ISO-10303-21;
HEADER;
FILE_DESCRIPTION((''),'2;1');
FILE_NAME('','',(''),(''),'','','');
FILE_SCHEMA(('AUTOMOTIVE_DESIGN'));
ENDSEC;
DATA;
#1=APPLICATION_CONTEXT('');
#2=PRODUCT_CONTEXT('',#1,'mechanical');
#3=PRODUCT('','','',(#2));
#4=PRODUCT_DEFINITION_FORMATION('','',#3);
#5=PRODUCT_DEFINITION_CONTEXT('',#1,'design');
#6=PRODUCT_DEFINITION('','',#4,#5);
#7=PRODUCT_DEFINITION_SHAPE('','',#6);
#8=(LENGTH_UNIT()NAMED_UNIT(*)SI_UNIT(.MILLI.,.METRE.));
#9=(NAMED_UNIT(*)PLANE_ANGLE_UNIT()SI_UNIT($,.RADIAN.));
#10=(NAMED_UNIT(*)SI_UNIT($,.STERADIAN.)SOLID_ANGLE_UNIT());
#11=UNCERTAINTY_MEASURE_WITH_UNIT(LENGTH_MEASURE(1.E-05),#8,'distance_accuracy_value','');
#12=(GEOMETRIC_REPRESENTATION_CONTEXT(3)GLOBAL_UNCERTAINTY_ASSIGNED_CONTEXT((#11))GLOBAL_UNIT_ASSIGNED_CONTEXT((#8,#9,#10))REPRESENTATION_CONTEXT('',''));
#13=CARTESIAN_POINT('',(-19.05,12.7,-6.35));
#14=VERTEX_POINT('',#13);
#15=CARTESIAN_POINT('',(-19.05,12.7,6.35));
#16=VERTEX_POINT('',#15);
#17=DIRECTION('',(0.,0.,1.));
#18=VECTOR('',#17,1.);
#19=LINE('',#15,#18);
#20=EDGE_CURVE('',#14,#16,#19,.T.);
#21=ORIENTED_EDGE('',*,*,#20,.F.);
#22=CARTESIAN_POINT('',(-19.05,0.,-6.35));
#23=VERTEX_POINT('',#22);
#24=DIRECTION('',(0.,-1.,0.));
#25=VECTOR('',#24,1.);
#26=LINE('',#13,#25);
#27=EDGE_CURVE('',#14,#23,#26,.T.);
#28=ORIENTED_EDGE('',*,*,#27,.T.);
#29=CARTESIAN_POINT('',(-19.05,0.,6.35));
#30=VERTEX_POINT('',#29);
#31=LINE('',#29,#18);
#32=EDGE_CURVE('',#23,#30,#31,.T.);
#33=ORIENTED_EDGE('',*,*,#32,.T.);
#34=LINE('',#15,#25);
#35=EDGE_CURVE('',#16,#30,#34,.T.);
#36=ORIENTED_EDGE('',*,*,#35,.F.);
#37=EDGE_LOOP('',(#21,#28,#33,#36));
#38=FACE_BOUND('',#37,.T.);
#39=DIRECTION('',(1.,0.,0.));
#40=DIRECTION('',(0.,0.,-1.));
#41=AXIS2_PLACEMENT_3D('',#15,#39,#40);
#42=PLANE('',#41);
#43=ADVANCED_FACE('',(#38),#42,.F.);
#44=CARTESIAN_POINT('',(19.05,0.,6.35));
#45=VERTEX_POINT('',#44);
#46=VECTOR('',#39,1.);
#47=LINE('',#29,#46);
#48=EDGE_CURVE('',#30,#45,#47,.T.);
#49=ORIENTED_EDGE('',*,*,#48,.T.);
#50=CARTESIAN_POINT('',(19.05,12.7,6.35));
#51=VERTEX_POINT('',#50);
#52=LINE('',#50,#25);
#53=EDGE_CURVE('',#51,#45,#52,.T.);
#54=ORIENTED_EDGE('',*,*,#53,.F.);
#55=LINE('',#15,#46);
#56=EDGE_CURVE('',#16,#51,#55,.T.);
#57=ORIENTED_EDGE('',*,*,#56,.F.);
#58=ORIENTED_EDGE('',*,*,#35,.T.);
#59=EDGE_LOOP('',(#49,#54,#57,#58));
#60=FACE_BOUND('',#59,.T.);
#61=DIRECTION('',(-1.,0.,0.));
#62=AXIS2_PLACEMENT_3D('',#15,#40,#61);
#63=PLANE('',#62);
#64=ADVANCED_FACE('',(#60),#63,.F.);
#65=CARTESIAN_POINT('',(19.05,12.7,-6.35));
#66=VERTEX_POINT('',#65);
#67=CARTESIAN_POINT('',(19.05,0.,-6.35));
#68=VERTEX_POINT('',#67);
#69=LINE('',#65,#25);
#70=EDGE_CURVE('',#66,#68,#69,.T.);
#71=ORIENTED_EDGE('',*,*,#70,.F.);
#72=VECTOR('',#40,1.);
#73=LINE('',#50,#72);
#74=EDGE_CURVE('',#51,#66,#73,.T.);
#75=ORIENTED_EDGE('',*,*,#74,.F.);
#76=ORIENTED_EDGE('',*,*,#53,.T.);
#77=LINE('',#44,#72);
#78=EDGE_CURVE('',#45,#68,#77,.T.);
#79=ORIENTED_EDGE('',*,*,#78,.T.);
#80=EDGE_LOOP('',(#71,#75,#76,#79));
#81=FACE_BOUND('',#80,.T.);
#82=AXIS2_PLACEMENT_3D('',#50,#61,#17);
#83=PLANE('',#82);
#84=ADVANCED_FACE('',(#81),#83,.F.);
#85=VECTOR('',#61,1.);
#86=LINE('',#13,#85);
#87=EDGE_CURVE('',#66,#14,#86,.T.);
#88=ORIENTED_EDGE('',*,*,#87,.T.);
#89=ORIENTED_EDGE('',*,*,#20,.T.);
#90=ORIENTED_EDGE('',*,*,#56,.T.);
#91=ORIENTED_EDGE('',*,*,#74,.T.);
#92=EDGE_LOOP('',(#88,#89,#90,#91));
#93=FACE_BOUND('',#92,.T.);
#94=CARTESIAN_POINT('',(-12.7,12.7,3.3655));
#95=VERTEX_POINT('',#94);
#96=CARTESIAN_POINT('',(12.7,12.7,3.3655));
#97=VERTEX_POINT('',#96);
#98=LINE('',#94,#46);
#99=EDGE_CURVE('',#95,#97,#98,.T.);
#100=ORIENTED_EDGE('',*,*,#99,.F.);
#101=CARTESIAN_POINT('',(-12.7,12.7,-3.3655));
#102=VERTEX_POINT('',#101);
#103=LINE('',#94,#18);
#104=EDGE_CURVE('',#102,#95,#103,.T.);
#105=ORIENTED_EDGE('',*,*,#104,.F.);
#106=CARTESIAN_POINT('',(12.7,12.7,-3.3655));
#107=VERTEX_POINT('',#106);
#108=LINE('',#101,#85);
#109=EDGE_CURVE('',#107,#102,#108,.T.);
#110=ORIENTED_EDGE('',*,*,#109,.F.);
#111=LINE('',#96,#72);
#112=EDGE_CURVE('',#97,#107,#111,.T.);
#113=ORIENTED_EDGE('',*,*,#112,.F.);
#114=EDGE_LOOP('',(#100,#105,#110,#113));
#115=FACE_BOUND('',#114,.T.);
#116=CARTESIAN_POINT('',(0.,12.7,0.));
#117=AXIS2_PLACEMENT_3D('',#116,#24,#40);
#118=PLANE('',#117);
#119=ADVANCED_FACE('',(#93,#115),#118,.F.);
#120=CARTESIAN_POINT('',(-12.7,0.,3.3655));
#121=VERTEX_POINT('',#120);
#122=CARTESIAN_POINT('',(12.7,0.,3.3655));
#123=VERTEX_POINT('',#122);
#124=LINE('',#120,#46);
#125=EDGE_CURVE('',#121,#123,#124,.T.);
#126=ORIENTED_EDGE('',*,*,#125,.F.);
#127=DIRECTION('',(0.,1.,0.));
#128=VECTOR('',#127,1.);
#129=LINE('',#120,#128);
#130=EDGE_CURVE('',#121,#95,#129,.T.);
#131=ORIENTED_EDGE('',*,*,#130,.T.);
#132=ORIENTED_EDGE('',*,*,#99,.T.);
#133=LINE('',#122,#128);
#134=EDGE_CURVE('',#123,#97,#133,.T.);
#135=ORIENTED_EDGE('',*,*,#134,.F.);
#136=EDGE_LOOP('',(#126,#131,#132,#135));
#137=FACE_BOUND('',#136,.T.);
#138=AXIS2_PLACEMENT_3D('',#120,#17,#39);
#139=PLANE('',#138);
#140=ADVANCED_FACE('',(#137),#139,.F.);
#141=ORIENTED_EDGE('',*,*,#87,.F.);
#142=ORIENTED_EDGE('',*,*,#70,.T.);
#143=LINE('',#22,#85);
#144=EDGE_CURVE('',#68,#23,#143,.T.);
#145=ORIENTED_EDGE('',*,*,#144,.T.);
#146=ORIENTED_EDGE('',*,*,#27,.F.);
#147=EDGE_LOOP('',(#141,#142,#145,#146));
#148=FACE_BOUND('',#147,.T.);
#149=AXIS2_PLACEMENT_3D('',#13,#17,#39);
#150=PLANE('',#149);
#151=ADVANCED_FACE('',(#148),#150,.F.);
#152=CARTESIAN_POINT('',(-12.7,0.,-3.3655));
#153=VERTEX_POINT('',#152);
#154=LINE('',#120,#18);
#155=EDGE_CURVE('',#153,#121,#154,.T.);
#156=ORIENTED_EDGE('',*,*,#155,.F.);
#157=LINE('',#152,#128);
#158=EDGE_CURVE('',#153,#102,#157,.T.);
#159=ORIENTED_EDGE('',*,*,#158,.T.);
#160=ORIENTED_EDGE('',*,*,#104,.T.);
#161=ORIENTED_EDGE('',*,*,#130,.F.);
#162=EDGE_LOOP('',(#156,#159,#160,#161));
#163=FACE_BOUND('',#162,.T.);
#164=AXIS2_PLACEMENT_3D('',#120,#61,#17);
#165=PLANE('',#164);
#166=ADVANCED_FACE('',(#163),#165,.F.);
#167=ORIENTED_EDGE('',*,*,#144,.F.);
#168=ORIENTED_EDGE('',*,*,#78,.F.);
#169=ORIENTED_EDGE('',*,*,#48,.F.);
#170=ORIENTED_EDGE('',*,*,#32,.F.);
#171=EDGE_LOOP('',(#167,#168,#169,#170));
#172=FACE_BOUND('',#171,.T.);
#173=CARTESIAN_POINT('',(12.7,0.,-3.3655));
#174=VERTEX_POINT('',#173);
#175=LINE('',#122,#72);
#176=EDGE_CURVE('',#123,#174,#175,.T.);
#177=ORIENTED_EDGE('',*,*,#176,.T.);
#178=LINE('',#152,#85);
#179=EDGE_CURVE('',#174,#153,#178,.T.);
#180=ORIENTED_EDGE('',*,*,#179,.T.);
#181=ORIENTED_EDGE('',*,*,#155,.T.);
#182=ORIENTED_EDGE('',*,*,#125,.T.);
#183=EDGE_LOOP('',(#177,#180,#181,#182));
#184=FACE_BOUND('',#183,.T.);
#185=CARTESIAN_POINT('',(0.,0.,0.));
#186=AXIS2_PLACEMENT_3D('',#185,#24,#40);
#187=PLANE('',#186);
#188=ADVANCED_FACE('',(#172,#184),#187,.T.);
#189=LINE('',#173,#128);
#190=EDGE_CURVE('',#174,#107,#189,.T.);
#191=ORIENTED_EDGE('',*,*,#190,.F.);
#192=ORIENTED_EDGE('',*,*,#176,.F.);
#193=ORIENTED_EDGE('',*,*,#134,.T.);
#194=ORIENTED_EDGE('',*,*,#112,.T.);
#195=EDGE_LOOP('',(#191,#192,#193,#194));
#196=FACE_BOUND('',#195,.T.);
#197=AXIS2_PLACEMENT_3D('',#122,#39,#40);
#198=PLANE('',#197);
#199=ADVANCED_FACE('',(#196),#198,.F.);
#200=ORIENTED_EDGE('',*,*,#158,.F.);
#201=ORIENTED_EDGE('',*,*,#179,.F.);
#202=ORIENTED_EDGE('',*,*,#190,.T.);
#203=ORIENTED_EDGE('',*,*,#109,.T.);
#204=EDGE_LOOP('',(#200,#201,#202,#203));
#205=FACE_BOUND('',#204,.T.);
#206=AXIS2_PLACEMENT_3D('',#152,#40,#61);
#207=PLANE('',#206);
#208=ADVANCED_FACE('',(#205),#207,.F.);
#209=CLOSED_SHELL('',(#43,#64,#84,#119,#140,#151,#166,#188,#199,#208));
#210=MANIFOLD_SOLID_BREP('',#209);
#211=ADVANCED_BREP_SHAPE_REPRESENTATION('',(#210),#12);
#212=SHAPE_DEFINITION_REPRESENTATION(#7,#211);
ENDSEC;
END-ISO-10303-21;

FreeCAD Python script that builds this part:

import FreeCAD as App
import Part
import Sketcher
from FreeCAD import Vector
Q = App.Units.Quantity


def add_polygon(sketch, points):
    """Adds a closed chain of lines whose ends are joined by coincident constraints."""
    first, n = sketch.GeometryCount, len(points)
    for a, b in zip(points, points[1:] + points[:1]):
        sketch.addGeometry(Part.LineSegment(App.Vector(*a, 0), App.Vector(*b, 0)), False)
    for i in range(n):
        sketch.addConstraint(Sketcher.Constraint("Coincident", first + i, 2, first + (i + 1) % n, 1))

doc = App.newDocument("Part")
body = doc.addObject("PartDesign::Body", "Body")

sketch1 = body.newObject("Sketcher::SketchObject", "Sketch")
sketch1.AttachmentSupport = (doc.getObject("XZ_Plane"), [""])
sketch1.MapMode = "FlatFace"
add_polygon(sketch1, [(-19, -6), (-19, 6), (19, 6), (19, -6)])
sketch1.addConstraint([
    Sketcher.Constraint("Vertical", 0),
    Sketcher.Constraint("Horizontal", 1),
    Sketcher.Constraint("Vertical", 2),
    Sketcher.Constraint("Horizontal", 3),
    Sketcher.Constraint("Symmetric", 0, 2, 2, 2, -1, 1),
    Sketcher.Constraint("DistanceX", 1, 1, 1, 2, Q("1.5 in")),
    Sketcher.Constraint("DistanceY", 0, 1, 0, 2, Q("0.5 in")),
])
pad1 = body.newObject("PartDesign::Pad", "Pad")
pad1.Profile = sketch1
pad1.Length = Q("0.5 in")
pad1.Reversed = True

sketch2 = body.newObject("Sketcher::SketchObject", "Sketch001")
sketch2.AttachmentSupport = (doc.getObject("XZ_Plane"), [""])
sketch2.MapMode = "FlatFace"
sketch2.AttachmentOffset = App.Placement(Vector(0, 0, -0.5 * 25.4), App.Rotation())
add_polygon(sketch2, [(-13, -3), (-13, 3), (13, 3), (13, -3)])
sketch2.addConstraint([
    Sketcher.Constraint("Vertical", 0),
    Sketcher.Constraint("Horizontal", 1),
    Sketcher.Constraint("Vertical", 2),
    Sketcher.Constraint("Horizontal", 3),
    Sketcher.Constraint("Symmetric", 0, 2, 2, 2, -1, 1),
    Sketcher.Constraint("DistanceX", 1, 1, 1, 2, Q("1 in")),
    Sketcher.Constraint("DistanceY", 0, 1, 0, 2, Q("0.265 in")),
])
pocket1 = body.newObject("PartDesign::Pocket", "Pocket")
pocket1.Profile = sketch2
pocket1.Length = Q("0.5 in")
pocket1.Reversed = True

doc.recompute()
